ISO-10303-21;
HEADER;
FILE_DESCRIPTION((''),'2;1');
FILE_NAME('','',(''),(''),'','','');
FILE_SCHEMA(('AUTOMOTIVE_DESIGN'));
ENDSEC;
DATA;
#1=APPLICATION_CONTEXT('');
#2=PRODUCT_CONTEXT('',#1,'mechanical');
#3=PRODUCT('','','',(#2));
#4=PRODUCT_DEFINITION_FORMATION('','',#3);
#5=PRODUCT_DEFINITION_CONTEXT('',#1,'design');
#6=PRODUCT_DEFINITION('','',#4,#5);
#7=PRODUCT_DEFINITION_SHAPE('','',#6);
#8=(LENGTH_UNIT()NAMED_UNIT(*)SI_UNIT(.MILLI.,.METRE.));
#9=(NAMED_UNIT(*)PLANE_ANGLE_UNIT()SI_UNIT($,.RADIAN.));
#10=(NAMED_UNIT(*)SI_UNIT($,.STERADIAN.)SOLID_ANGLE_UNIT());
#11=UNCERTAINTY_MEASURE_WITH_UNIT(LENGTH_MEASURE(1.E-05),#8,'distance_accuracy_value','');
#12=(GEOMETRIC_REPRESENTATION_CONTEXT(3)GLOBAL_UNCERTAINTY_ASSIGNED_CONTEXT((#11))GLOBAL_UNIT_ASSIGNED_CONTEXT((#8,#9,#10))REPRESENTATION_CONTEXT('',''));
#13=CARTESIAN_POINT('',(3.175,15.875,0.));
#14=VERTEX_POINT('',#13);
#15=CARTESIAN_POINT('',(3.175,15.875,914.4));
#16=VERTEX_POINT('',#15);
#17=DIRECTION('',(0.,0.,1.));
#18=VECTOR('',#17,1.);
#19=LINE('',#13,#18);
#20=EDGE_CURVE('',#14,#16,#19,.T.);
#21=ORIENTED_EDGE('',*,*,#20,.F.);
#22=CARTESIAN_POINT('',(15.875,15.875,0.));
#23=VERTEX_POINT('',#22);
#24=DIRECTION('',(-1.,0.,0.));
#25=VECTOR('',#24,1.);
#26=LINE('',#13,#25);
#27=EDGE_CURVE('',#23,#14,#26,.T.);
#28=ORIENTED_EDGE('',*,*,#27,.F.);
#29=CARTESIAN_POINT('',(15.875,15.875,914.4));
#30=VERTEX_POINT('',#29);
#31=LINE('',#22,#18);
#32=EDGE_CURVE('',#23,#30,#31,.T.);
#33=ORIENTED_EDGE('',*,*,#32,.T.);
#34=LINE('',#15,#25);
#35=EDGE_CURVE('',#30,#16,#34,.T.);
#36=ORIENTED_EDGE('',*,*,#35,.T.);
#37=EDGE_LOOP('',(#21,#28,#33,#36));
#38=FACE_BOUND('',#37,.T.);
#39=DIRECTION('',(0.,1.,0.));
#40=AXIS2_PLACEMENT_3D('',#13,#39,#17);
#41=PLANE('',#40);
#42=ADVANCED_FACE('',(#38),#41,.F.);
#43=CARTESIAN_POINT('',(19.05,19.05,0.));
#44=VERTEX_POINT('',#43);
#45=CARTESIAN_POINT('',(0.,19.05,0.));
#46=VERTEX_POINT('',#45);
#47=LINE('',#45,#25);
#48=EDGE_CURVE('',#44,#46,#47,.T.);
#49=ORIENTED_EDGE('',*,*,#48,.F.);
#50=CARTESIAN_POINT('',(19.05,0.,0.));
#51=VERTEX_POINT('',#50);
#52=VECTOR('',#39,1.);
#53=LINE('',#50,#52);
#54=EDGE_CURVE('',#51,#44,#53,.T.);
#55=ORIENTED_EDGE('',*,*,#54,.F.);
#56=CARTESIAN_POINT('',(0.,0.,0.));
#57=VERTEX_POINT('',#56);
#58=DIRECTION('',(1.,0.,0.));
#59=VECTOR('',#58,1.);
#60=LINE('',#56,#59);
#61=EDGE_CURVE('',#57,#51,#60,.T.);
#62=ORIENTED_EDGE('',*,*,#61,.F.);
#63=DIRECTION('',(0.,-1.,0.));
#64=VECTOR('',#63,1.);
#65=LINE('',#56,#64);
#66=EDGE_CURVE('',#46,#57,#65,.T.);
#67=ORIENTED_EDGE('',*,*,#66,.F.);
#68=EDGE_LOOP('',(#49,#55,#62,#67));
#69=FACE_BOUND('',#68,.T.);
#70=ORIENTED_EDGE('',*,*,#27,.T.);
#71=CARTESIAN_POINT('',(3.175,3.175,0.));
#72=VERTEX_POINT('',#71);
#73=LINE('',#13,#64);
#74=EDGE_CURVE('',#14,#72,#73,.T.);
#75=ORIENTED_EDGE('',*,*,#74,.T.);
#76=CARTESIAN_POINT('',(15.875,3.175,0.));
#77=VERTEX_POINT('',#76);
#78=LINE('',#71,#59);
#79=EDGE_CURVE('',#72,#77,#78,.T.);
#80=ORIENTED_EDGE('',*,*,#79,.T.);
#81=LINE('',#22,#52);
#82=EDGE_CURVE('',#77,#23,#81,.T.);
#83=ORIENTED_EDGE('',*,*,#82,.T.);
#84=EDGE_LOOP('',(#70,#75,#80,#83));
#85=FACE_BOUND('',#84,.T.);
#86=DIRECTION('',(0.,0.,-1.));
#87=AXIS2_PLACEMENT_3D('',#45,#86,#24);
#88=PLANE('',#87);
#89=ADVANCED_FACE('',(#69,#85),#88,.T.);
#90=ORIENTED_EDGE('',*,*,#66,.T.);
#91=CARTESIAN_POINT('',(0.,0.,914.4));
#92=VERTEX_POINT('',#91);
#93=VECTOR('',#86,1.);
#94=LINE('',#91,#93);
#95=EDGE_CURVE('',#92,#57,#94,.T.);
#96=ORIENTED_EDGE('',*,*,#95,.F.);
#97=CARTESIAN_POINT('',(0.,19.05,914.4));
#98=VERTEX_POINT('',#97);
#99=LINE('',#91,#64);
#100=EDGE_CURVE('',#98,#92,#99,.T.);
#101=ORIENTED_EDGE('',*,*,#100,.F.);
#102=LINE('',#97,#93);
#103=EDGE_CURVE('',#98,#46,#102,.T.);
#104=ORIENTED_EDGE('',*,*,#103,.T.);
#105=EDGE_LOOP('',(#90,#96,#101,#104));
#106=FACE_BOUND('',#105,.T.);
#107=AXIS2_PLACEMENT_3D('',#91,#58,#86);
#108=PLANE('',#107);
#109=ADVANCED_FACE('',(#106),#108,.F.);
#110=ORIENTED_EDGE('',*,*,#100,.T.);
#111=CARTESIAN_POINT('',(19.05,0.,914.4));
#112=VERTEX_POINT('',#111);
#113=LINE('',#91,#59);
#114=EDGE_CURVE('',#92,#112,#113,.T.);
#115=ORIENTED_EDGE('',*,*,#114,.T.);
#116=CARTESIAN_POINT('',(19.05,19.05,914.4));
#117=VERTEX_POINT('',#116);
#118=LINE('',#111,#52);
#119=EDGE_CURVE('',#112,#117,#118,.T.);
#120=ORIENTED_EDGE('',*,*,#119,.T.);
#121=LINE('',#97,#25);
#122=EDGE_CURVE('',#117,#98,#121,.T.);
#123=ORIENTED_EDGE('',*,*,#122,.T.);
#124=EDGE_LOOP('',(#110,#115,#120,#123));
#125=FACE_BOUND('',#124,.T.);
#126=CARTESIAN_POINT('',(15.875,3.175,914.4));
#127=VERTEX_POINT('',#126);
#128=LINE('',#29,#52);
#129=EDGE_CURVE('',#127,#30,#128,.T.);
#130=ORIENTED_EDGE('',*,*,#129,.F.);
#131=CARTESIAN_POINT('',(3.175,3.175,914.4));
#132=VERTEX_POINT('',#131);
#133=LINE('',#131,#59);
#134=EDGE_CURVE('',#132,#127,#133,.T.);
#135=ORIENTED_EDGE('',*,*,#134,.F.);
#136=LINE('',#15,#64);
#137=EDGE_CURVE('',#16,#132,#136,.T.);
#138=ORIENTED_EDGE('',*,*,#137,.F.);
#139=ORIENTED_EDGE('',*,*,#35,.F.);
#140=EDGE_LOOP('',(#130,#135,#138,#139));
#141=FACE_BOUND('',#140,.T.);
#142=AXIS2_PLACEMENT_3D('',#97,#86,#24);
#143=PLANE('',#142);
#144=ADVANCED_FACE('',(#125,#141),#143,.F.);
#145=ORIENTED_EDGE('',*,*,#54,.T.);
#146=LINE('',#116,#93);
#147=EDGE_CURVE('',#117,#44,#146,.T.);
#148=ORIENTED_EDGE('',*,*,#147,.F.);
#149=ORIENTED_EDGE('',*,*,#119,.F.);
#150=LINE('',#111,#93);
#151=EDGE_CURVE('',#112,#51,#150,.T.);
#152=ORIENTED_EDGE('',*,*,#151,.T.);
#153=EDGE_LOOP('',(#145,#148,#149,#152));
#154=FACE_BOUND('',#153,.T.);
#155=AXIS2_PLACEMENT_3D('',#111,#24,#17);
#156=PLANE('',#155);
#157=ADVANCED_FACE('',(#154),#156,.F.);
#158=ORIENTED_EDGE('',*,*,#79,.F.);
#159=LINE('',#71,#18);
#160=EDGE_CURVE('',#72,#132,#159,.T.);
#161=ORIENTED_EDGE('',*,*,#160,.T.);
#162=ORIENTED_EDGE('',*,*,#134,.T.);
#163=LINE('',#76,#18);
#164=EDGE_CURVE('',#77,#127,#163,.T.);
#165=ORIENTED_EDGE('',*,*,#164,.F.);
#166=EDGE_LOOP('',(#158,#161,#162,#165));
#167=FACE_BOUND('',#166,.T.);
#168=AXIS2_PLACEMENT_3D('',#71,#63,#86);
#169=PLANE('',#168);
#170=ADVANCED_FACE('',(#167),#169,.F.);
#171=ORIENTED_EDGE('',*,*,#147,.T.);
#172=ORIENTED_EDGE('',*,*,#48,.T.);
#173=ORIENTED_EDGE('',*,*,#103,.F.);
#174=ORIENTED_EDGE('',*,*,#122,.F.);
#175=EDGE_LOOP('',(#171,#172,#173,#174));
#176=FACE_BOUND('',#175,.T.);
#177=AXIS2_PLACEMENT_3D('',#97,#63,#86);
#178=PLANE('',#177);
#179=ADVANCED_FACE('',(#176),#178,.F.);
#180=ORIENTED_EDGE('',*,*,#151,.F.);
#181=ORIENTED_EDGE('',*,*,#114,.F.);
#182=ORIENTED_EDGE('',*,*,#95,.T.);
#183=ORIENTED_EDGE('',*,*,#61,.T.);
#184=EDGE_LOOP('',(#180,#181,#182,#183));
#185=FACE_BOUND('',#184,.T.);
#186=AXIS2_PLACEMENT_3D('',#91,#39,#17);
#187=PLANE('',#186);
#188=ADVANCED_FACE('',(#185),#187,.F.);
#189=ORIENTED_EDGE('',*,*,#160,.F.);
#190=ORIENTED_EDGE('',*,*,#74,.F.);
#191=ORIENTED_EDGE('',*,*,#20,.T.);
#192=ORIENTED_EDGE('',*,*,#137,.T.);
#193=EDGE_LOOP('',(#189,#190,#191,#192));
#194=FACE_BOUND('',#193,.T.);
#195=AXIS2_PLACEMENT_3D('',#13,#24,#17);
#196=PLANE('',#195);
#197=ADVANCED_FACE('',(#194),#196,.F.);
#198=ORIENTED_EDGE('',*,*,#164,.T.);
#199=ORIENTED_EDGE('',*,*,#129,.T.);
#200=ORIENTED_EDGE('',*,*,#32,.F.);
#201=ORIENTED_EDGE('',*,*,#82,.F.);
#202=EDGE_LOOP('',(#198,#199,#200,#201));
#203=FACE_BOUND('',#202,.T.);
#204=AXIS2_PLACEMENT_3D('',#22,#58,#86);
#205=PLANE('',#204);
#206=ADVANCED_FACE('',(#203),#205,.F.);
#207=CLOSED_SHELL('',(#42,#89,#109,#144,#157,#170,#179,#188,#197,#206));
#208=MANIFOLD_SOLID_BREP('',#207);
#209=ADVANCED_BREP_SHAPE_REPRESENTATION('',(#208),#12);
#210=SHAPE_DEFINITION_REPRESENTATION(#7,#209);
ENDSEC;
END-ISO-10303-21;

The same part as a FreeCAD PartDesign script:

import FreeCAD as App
import Part
import Sketcher
from FreeCAD import Vector
Q = App.Units.Quantity


def add_polygon(sketch, points):
    """Adds a closed chain of lines whose ends are joined by coincident constraints."""
    first, n = sketch.GeometryCount, len(points)
    for a, b in zip(points, points[1:] + points[:1]):
        sketch.addGeometry(Part.LineSegment(App.Vector(*a, 0), App.Vector(*b, 0)), False)
    for i in range(n):
        sketch.addConstraint(Sketcher.Constraint("Coincident", first + i, 2, first + (i + 1) % n, 1))

doc = App.newDocument("Part")
body = doc.addObject("PartDesign::Body", "Body")

sketch1 = body.newObject("Sketcher::SketchObject", "Sketch")
sketch1.AttachmentSupport = (doc.getObject("XY_Plane"), [""])
sketch1.MapMode = "FlatFace"
add_polygon(sketch1, [(0, 19), (0, 0), (19, 0), (19, 19)])
sketch1.addConstraint(Sketcher.Constraint("Vertical", 0))
sketch1.addConstraint(Sketcher.Constraint("Horizontal", 1))
sketch1.addConstraint(Sketcher.Constraint("Vertical", 2))
sketch1.addConstraint(Sketcher.Constraint("Horizontal", 3))
sketch1.addConstraint(Sketcher.Constraint("Coincident", 0, 2, -1, 1))
sketch1.addConstraint(Sketcher.Constraint("Equal", 3, 0))
sketch1.addConstraint(Sketcher.Constraint("DistanceX", 1, 1, 1, 2, Q("0.75 in")))
pad1 = body.newObject("PartDesign::Pad", "Pad")
pad1.Profile = sketch1
pad1.Length = Q("36 in")

sketch2 = body.newObject("Sketcher::SketchObject", "Sketch001")
sketch2.AttachmentSupport = (doc.getObject("XY_Plane"), [""])
sketch2.MapMode = "FlatFace"
sketch2.AttachmentOffset = App.Placement(Vector(0, 0, 36 * 25.4), App.Rotation())
add_polygon(sketch2, [(3, 16), (3, 3), (16, 3), (16, 16)])
sketch2.addConstraint(Sketcher.Constraint("Vertical", 0))
sketch2.addConstraint(Sketcher.Constraint("Horizontal", 1))
sketch2.addConstraint(Sketcher.Constraint("Vertical", 2))
sketch2.addConstraint(Sketcher.Constraint("Horizontal", 3))
sketch2.addConstraint(Sketcher.Constraint("Equal", 3, 0))
sketch2.addConstraint(Sketcher.Constraint("DistanceX", 1, 1, 1, 2, Q("0.5 in")))
sketch2.addConstraint(Sketcher.Constraint("DistanceX", -1, 1, 0, 2, Q("0.125 in")))
sketch2.addConstraint(Sketcher.Constraint("DistanceY", -1, 1, 0, 2, Q("0.125 in")))
pocket1 = body.newObject("PartDesign::Pocket", "Pocket")
pocket1.Profile = sketch2
pocket1.Type = "ThroughAll"

doc.recompute()
